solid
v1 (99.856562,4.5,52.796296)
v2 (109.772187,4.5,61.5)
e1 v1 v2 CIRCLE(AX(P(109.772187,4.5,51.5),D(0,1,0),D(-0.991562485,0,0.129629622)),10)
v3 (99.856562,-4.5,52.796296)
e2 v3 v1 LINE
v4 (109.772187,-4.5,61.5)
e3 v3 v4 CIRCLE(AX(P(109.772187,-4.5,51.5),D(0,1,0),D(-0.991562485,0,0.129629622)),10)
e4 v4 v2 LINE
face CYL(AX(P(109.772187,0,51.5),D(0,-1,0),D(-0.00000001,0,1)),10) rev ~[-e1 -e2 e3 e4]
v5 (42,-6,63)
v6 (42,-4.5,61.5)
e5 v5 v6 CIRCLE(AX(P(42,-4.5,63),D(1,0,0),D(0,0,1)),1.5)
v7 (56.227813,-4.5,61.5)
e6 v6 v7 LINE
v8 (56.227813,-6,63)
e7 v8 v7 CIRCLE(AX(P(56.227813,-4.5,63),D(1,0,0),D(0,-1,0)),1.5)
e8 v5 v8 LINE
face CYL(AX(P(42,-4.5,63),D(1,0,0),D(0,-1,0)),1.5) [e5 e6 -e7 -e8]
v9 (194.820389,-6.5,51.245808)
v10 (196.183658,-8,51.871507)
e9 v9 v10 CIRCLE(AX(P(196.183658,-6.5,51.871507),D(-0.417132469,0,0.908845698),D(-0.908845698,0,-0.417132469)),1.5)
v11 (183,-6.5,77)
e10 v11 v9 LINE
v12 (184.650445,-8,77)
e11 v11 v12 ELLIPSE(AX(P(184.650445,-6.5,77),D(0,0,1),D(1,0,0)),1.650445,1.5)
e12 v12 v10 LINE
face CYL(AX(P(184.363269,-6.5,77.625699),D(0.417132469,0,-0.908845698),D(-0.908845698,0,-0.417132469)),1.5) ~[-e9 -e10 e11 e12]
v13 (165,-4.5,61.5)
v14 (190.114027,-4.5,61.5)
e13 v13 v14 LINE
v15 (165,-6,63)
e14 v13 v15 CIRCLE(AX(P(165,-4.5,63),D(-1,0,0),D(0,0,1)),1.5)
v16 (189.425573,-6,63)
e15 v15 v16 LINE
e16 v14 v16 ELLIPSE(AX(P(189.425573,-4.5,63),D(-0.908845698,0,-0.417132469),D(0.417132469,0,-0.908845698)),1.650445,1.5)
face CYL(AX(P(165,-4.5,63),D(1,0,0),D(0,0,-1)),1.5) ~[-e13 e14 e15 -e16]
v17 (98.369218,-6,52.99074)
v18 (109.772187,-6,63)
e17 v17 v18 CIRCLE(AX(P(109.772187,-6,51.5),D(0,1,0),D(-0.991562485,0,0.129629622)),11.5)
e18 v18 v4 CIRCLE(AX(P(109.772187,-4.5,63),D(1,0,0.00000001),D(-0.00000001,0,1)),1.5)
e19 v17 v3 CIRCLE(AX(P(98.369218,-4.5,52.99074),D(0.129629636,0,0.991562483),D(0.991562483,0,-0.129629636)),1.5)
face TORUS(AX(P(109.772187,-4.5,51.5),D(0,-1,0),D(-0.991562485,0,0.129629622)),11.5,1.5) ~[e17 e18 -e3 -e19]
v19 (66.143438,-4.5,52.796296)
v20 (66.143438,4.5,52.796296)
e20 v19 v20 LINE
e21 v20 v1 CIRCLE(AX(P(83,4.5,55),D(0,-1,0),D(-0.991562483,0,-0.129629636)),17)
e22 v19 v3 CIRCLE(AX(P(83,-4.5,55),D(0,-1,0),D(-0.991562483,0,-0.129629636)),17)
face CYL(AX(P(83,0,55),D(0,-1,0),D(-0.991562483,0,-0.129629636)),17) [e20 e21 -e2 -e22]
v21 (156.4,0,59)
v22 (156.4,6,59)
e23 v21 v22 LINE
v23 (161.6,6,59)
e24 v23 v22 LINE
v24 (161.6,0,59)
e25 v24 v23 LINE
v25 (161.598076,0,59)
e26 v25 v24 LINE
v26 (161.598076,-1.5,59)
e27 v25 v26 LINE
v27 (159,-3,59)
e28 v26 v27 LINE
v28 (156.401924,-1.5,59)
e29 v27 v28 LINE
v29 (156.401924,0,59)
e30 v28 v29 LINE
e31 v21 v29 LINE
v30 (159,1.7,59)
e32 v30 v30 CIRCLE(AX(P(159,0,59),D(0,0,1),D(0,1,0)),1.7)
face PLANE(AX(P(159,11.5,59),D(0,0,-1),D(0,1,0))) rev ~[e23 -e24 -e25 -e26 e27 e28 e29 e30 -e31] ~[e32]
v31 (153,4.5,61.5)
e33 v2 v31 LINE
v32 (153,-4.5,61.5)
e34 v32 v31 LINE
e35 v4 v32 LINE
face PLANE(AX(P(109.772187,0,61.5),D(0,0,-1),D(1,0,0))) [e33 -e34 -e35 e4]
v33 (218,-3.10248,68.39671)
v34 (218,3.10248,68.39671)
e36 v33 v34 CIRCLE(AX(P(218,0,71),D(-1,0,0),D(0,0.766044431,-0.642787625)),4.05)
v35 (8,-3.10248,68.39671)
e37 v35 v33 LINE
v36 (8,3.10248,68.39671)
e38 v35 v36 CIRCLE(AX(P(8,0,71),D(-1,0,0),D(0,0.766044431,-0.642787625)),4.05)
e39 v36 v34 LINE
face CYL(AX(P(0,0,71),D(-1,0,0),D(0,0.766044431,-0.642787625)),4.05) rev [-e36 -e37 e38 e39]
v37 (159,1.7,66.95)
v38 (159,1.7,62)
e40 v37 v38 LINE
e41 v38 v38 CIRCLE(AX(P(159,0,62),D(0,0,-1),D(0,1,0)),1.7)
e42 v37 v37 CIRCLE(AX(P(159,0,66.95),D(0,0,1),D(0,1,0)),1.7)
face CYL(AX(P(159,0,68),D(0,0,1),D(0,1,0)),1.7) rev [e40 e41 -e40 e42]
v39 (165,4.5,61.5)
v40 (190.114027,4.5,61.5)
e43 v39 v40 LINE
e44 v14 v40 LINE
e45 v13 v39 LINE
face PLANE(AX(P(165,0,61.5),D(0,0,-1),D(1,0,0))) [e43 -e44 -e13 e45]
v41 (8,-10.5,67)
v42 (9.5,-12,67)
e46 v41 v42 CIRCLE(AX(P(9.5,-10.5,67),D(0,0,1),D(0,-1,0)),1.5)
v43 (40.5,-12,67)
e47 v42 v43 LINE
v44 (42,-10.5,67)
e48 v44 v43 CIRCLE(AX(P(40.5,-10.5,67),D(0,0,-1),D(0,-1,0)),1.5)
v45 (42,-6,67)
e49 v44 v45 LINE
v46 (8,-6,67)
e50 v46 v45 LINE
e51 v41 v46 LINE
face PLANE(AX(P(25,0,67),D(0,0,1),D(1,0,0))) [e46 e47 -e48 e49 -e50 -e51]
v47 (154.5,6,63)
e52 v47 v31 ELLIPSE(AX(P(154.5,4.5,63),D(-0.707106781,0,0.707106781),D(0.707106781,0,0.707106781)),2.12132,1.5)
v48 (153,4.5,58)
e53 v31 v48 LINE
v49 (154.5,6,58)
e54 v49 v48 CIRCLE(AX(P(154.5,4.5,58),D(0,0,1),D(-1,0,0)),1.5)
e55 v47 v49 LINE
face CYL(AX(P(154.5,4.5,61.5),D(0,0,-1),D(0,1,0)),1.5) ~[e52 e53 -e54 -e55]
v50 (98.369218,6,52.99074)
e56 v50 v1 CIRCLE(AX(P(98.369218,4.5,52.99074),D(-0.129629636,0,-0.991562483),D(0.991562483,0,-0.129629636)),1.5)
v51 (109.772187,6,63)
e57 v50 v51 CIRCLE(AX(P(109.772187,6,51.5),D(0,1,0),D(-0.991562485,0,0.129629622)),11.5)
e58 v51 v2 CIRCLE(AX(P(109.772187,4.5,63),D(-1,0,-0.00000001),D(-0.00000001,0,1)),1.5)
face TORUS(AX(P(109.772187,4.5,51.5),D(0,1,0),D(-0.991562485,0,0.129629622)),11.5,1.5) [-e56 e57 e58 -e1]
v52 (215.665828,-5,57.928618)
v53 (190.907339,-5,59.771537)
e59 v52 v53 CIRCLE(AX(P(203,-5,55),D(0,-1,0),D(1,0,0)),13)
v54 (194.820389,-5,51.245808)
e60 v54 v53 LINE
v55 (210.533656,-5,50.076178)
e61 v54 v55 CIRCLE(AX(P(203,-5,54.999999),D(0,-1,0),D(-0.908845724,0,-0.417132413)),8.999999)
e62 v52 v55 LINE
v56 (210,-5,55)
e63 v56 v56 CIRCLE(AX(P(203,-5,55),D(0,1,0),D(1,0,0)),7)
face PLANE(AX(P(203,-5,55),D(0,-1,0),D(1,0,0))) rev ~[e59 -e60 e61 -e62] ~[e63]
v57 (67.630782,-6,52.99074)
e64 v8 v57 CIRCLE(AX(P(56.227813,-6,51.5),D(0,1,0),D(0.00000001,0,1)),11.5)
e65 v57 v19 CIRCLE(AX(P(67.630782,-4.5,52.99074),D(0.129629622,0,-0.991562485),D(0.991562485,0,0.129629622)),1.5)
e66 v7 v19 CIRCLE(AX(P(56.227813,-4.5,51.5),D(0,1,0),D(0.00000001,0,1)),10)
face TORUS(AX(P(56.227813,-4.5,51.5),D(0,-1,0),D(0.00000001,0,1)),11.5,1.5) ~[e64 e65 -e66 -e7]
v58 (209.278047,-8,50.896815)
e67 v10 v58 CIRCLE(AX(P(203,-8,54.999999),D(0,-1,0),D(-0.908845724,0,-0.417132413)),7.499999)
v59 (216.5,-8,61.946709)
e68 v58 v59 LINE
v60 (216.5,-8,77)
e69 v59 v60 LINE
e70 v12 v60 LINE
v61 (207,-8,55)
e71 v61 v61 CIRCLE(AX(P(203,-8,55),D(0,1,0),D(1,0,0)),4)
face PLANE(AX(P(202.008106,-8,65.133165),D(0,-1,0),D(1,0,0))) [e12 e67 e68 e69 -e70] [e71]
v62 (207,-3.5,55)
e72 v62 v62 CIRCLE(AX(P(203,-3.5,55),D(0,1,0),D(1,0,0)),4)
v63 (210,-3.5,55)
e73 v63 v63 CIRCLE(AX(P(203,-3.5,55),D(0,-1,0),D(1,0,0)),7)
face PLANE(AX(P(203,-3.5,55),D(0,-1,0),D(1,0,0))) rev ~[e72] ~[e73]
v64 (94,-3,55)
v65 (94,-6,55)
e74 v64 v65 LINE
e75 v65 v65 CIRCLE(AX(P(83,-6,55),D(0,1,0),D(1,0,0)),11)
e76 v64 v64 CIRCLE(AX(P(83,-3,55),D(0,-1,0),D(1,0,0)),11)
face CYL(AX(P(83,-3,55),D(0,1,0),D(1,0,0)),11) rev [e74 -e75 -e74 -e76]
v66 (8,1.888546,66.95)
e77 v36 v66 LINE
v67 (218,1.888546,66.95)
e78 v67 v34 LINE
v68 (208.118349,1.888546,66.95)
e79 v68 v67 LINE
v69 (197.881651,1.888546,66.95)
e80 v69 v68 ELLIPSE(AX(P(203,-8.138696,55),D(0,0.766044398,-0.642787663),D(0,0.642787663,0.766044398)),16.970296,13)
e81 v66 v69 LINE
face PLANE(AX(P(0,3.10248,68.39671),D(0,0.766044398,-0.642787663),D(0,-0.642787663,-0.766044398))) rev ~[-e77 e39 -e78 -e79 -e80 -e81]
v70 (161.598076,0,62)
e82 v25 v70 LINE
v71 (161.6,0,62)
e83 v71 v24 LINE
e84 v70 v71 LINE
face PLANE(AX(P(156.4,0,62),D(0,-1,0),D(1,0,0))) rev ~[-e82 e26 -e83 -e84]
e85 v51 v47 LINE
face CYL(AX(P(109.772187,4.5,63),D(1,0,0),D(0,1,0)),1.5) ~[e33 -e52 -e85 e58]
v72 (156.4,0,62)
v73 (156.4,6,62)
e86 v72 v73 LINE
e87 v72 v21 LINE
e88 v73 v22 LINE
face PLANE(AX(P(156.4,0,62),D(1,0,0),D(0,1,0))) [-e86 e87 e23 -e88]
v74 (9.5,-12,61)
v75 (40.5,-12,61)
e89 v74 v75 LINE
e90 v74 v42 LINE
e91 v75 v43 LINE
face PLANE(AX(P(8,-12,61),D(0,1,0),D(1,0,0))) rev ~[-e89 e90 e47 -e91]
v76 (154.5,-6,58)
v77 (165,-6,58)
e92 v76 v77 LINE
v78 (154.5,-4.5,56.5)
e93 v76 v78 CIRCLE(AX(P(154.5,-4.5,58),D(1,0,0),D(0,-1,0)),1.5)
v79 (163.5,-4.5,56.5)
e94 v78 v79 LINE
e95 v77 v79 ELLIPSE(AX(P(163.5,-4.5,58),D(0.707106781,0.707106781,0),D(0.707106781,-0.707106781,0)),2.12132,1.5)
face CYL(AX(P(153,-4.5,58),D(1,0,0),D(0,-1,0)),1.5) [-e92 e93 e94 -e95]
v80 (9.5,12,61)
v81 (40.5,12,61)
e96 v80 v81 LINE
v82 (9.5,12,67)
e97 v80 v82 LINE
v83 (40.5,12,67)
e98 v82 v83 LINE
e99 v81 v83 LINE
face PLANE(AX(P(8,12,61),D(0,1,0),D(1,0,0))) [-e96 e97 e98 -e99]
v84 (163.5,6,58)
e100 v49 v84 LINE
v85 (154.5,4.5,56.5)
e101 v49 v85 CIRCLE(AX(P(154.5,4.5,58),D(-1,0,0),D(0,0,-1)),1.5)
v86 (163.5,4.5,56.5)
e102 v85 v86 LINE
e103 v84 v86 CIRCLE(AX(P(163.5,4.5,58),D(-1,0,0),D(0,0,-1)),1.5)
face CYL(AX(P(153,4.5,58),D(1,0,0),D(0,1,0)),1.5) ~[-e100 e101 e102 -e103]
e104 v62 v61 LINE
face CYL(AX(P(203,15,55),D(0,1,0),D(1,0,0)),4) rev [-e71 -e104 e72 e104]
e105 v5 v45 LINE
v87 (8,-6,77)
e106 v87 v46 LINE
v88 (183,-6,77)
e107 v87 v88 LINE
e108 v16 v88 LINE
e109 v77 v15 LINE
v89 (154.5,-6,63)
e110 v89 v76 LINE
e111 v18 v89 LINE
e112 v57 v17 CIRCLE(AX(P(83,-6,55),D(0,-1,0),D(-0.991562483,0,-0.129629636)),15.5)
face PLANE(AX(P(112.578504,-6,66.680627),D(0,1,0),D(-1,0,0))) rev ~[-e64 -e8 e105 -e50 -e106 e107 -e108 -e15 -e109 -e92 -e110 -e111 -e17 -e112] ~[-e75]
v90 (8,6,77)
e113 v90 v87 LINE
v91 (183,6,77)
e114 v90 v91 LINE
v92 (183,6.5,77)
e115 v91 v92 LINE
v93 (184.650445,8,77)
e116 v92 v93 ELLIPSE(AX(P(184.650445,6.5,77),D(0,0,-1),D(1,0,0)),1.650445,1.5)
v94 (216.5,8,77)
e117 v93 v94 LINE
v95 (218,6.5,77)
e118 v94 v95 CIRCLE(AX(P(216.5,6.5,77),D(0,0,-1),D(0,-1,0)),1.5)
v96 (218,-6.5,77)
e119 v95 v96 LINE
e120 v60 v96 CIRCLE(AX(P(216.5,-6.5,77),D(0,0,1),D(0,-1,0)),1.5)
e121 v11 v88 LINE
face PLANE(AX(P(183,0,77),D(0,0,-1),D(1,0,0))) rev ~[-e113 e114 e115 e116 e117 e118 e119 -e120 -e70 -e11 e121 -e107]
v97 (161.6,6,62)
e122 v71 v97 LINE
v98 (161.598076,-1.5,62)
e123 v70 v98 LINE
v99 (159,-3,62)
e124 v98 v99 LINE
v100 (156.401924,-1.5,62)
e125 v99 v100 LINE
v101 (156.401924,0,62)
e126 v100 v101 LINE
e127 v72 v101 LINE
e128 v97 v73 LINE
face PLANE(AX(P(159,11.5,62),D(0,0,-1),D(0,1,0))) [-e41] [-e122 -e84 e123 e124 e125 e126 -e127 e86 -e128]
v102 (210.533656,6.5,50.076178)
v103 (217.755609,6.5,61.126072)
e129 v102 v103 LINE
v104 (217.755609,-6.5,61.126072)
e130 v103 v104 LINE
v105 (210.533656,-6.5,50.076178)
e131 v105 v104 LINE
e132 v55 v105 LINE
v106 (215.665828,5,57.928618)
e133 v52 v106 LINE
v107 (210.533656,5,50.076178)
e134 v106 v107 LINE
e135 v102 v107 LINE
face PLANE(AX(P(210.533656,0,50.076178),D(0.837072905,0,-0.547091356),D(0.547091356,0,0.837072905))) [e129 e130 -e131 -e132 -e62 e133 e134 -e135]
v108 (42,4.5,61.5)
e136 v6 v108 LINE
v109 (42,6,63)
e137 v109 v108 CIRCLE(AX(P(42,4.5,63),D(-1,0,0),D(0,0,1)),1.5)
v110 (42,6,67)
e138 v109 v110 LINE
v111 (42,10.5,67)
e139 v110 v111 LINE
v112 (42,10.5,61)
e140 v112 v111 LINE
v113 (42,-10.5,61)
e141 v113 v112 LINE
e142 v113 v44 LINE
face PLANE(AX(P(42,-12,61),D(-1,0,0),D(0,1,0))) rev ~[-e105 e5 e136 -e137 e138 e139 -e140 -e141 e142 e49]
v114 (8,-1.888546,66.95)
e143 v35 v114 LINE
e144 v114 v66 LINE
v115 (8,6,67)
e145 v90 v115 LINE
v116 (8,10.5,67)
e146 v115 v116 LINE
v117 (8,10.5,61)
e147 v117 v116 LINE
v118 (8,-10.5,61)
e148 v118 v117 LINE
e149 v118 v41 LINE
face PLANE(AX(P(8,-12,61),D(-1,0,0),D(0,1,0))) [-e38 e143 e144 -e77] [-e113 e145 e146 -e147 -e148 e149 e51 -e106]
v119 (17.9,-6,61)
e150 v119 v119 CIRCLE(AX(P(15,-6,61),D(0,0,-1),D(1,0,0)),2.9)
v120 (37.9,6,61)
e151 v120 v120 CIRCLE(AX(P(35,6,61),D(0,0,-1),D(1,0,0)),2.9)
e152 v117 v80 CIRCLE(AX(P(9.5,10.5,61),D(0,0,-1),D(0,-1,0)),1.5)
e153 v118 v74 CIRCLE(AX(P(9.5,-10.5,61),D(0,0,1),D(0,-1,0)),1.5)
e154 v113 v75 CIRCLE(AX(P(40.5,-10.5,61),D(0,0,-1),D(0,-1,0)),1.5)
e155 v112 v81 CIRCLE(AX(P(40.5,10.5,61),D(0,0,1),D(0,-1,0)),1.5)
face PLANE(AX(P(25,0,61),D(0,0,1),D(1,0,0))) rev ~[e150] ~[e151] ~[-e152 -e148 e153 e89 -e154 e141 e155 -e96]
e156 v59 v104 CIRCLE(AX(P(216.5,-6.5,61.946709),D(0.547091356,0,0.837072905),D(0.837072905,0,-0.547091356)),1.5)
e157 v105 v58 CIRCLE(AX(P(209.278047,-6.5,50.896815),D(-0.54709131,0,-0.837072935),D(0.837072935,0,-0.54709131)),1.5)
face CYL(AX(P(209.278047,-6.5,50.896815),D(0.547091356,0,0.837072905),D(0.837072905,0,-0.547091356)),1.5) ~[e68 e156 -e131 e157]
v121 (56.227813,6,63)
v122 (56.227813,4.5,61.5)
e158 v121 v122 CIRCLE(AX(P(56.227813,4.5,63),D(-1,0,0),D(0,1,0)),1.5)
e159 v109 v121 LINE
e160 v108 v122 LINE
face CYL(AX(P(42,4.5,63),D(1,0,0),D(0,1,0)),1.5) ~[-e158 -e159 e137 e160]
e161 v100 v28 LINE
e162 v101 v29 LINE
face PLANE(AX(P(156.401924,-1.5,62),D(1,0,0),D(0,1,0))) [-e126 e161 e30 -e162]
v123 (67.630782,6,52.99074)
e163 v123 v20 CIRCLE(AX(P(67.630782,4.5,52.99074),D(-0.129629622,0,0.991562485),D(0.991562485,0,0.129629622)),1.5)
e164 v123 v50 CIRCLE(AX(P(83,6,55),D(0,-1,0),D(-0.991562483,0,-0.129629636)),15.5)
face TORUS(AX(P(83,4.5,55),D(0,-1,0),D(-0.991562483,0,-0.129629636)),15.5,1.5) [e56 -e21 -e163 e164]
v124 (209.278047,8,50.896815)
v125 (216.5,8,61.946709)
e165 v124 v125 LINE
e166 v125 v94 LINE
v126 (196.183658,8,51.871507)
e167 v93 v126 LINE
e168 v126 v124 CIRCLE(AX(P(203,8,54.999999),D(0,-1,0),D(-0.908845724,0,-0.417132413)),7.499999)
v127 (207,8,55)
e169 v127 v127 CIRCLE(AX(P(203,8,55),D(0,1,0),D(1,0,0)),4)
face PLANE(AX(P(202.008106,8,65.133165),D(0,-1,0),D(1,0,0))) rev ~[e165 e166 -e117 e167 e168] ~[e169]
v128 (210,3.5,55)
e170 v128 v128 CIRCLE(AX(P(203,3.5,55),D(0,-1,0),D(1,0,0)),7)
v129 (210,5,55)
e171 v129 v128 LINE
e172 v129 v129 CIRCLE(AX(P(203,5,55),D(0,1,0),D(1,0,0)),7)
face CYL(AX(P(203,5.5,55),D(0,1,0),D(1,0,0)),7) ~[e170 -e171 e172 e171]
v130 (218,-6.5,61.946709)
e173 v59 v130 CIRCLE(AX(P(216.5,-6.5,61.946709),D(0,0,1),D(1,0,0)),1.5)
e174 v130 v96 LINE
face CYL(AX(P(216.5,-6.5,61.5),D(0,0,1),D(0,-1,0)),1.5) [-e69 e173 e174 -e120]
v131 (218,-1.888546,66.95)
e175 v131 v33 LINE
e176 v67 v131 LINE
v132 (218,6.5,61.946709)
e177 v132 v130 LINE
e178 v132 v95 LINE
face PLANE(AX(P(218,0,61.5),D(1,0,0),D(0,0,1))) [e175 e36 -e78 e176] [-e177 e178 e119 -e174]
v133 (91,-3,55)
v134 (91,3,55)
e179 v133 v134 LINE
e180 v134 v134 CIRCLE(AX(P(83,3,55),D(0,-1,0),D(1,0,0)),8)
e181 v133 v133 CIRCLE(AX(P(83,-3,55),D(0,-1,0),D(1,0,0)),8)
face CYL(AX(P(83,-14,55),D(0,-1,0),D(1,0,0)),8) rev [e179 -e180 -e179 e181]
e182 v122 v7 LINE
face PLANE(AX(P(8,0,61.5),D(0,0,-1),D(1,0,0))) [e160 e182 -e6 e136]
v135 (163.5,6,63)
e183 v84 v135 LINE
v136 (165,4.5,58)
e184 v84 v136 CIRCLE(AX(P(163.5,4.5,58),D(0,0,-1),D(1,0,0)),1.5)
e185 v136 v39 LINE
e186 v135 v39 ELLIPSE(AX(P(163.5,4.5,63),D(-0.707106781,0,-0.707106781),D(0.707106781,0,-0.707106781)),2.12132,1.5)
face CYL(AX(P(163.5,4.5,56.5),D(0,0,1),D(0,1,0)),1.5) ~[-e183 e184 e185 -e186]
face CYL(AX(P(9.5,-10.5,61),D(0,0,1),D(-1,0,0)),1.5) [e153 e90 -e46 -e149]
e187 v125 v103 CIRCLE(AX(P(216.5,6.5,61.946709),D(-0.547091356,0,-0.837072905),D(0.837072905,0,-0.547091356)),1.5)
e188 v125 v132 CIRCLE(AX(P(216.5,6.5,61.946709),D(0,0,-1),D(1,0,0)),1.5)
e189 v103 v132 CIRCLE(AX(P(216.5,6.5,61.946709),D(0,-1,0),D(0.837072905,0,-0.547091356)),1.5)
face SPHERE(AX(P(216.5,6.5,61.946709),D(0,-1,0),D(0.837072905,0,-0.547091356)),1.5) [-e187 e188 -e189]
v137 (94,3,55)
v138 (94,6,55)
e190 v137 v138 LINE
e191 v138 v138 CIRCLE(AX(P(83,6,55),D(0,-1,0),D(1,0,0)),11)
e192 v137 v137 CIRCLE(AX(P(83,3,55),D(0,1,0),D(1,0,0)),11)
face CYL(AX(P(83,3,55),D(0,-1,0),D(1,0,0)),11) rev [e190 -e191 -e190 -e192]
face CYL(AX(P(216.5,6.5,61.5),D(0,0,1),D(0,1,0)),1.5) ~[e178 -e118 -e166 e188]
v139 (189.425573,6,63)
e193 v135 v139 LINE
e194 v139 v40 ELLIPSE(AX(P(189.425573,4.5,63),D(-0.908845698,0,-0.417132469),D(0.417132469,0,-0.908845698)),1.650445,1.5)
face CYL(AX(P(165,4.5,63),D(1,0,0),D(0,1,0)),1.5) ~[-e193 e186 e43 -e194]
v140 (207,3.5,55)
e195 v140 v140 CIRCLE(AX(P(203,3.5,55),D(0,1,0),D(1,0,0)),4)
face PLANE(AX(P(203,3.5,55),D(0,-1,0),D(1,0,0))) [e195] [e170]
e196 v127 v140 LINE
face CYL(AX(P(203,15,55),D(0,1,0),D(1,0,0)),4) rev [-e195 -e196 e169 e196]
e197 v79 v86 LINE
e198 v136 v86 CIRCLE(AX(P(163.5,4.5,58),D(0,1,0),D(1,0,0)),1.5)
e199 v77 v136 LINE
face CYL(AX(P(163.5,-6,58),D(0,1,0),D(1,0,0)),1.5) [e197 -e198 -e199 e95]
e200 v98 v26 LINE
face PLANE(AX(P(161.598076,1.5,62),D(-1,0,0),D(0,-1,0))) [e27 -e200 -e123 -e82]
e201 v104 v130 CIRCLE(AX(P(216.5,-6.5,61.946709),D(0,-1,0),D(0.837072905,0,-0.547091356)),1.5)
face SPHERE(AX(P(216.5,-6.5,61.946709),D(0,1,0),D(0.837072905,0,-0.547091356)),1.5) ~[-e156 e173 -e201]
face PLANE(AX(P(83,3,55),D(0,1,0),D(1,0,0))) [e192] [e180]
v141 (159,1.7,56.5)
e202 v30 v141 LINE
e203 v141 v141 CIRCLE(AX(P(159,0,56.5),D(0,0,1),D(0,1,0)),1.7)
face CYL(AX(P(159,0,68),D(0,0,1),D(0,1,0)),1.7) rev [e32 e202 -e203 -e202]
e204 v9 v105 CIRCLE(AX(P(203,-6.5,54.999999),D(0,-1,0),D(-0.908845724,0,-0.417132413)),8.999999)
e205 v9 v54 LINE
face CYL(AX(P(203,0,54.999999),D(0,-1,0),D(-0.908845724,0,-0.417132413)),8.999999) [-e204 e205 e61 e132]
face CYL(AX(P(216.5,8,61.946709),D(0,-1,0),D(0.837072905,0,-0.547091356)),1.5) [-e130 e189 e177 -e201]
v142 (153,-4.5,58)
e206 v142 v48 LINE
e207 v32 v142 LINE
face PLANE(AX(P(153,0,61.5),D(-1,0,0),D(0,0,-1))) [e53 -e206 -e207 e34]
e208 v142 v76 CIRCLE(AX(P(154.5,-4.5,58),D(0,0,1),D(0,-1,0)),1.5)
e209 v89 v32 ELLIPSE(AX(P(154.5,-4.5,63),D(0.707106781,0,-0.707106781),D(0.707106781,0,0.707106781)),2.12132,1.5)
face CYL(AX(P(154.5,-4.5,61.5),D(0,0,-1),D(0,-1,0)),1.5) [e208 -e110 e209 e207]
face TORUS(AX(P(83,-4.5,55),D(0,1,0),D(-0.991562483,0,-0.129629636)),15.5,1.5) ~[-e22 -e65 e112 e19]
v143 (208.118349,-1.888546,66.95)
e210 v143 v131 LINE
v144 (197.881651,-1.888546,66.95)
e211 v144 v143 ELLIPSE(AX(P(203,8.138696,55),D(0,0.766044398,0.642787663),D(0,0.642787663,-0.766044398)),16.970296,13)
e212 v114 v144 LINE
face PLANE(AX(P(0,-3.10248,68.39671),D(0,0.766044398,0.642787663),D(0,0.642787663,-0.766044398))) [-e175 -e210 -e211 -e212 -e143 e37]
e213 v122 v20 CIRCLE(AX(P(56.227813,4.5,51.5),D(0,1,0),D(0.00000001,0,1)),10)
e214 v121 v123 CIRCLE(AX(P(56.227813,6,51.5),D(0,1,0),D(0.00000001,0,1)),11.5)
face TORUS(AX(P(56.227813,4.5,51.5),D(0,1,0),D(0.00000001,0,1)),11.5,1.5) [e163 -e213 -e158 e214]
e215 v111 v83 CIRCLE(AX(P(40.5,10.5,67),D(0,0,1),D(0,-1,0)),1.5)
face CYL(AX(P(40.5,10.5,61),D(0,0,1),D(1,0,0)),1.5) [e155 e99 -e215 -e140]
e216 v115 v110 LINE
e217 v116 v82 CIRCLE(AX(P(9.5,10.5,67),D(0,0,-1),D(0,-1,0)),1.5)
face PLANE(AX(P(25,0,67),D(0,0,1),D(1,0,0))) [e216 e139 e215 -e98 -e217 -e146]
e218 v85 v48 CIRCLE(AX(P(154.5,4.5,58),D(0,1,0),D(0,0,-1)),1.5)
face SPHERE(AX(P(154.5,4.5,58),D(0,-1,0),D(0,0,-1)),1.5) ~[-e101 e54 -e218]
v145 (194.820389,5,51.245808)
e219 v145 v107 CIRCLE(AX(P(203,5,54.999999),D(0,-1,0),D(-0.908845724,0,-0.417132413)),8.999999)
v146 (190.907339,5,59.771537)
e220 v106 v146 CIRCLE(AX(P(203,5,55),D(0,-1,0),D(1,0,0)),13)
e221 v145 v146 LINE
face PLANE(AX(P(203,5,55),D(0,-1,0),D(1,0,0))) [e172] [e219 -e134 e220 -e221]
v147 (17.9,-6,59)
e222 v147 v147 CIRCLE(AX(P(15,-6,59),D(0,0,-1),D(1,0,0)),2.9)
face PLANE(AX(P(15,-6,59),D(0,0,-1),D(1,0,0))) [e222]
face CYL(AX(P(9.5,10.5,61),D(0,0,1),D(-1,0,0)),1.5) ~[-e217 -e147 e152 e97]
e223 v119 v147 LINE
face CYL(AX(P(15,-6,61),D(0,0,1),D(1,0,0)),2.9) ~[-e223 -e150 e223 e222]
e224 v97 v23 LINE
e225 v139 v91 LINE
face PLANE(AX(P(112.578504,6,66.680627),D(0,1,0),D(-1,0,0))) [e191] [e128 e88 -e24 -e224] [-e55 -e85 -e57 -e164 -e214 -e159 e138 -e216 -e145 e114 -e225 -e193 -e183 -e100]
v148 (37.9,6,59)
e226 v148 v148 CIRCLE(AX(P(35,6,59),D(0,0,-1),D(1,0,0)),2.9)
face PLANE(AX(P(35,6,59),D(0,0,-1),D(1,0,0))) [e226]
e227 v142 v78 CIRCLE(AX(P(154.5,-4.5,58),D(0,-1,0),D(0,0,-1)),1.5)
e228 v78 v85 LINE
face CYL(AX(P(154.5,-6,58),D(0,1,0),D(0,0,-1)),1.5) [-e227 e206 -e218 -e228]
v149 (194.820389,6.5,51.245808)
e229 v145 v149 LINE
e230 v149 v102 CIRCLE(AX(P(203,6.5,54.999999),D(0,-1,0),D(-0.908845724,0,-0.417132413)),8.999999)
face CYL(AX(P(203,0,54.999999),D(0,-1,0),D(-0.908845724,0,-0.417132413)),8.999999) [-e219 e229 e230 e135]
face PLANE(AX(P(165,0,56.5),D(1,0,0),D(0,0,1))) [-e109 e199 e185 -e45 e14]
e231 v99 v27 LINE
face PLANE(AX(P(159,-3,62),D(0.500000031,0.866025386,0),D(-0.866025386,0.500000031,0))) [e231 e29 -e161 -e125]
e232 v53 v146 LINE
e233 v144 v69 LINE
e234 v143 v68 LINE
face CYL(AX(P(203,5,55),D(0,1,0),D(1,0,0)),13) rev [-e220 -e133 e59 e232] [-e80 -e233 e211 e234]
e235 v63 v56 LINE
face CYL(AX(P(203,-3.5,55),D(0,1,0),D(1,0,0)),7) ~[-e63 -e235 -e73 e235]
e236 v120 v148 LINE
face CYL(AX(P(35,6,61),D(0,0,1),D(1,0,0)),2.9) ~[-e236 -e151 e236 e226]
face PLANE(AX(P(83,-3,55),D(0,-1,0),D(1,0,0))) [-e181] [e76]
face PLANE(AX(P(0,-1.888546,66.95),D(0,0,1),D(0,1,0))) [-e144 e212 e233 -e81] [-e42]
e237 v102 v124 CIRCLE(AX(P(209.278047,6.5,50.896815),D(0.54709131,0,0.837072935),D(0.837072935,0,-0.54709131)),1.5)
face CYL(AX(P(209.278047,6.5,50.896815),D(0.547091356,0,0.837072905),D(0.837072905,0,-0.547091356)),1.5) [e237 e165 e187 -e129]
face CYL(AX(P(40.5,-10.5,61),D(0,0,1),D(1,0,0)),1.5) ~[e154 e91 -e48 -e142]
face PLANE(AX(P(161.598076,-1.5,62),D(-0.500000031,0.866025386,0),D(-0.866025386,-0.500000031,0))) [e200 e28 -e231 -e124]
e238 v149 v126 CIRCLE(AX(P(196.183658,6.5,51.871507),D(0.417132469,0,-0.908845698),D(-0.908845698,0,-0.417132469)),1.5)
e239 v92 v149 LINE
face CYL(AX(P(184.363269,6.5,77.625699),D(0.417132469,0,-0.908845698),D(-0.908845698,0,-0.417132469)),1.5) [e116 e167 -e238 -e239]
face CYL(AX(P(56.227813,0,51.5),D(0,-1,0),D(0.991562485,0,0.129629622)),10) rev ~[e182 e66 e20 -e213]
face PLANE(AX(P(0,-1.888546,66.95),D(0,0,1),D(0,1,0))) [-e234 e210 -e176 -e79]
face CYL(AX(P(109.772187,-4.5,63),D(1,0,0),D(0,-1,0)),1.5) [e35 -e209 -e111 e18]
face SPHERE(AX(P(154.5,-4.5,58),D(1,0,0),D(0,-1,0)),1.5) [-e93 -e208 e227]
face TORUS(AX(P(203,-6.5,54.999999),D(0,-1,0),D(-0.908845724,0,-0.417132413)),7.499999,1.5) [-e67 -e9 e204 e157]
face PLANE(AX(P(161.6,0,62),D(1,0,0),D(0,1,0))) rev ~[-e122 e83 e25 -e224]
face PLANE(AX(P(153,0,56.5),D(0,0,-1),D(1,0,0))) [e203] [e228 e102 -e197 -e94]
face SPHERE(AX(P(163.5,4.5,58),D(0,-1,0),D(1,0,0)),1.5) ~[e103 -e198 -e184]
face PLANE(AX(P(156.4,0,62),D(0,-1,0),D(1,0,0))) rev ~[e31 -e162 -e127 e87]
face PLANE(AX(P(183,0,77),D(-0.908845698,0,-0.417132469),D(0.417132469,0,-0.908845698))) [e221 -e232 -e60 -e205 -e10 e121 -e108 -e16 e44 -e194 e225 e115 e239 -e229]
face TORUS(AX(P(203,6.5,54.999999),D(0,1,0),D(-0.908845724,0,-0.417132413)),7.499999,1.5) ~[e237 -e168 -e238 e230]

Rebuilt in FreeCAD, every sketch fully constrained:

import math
import FreeCAD as App
import Part
import Sketcher
Q = App.Units.Quantity


def edges_at(feature, points):
    """Names of the edges that pass closest to the given points."""
    edges = feature.Shape.Edges
    near = lambda p: min(range(len(edges)), key=lambda i: edges[i].distToShape(Part.Vertex(*p))[0])
    return sorted({f"Edge{near(p) + 1}" for p in points})


def add_polygon(sketch, points):
    """Adds a closed chain of lines whose ends are joined by coincident constraints."""
    first, n = sketch.GeometryCount, len(points)
    for a, b in zip(points, points[1:] + points[:1]):
        sketch.addGeometry(Part.LineSegment(App.Vector(*a, 0), App.Vector(*b, 0)), False)
    for i in range(n):
        sketch.addConstraint(Sketcher.Constraint("Coincident", first + i, 2, first + (i + 1) % n, 1))

doc = App.newDocument("Part")
params = doc.addObject("Spreadsheet::Sheet", "Params")
for row, (alias, value) in enumerate([
    ("sketch1_diameter", "22 mm"),
    ("pad1_length", "10 mm"),
    ("sketch2_diameter", "16 mm"),
    ("pad2_length", "28 mm"),
    ("sketch3_diameter", "22 mm"),
    ("pad3_length", "10 mm"),
    ("sketch4_diameter", "8 mm"),
    ("pad4_length", "31 mm"),
    ("sketch5_diameter", "14 mm"),
    ("pad5_length", "2 mm"),
    ("sketch6_diameter", "14 mm"),
    ("pad6_length", "2 mm"),
    ("sketch7_diameter", "26 mm"),
    ("pad7_length", "10 mm"),
    ("sketch8_diameter", "3.4 mm"),
    ("pad8_length", "21 mm"),
    ("sketch9_width", "23 mm"),
    ("sketch9_height", "5.2 mm"),
    ("pad9_length", "3 mm"),
    ("sketch10_width", "3 mm"),
    ("sketch10_length", "3 mm"),
    ("pad10_length", "3 mm"),
    ("sketch11_radius", "4.05 mm"),
    ("pad11_length", "275 mm"),
    ("sketch12_diameter", "22 mm"),
    ("pad12_length", "10 mm"),
    ("sketch13_width", "34 mm"),
    ("sketch13_height", "24 mm"),
    ("pad13_length", "6 mm"),
    ("sketch14_radius", "8.999999 mm"),
    ("sketch14_width", "35 mm"),
    ("sketch14_height", "15.5 mm"),
    ("pad14_length", "16 mm"),
    ("sketch15_diameter", "5.8 mm"),
    ("pad15_length", "2 mm"),
    ("sketch16_diameter", "5.8 mm"),
    ("pad16_length", "2 mm"),
    ("sketch17_radius", "10 mm"),
    ("sketch17_radius2", "17 mm"),
    ("sketch17_width", "210 mm"),
    ("sketch17_width2", "12 mm"),
    ("sketch17_width3", "53 mm"),
    ("pad17_length", "12 mm"),
    ("fillet_radius", "1.5 mm"),
], start=1):
    params.set(f"A{row}", alias)
    params.set(f"B{row}", "=" + value)
    params.setAlias(f"B{row}", alias)

body = doc.addObject("PartDesign::Body", "Body")

sketch1 = body.newObject("Sketcher::SketchObject", "Sketch")
sketch1.AttachmentSupport = (doc.getObject("XZ_Plane"), [""])
sketch1.MapMode = "FlatFace"
sketch1.AttachmentOffset = App.Placement(App.Vector(0, 0, -3), App.Rotation())
sketch1.addGeometry(Part.Circle(App.Vector(83, 55, 0), App.Vector(0, 0, 1), 11), False)
sketch1.addConstraint([
    Sketcher.Constraint("Diameter", 0, Q("22 mm")),
    Sketcher.Constraint("DistanceX", -1, 1, 0, 3, Q("83 mm")),
    Sketcher.Constraint("DistanceY", -1, 1, 0, 3, Q("55 mm")),
])
sketch1.setExpression("Constraints[0]", "Params.sketch1_diameter")
pad1 = body.newObject("PartDesign::Pad", "Pad")
pad1.Profile = sketch1
pad1.setExpression("Length", "Params.pad1_length")
pad1.Reversed = True
body2 = doc.addObject("PartDesign::Body", "Body001")

sketch2 = body2.newObject("Sketcher::SketchObject", "Sketch001")
sketch2.AttachmentSupport = (doc.getObject("XZ_Plane001"), [""])
sketch2.MapMode = "FlatFace"
sketch2.AttachmentOffset = App.Placement(App.Vector(0, 0, 14), App.Rotation())
sketch2.addGeometry(Part.Circle(App.Vector(83, 55, 0), App.Vector(0, 0, 1), 8), False)
sketch2.addConstraint([
    Sketcher.Constraint("Diameter", 0, Q("16 mm")),
    Sketcher.Constraint("DistanceX", -1, 1, 0, 3, Q("83 mm")),
    Sketcher.Constraint("DistanceY", -1, 1, 0, 3, Q("55 mm")),
])
sketch2.setExpression("Constraints[0]", "Params.sketch2_diameter")
pad2 = body2.newObject("PartDesign::Pad", "Pad001")
pad2.Profile = sketch2
pad2.setExpression("Length", "Params.pad2_length")
pad2.Reversed = True
body3 = doc.addObject("PartDesign::Body", "Body002")

sketch3 = body3.newObject("Sketcher::SketchObject", "Sketch002")
sketch3.AttachmentSupport = (doc.getObject("XZ_Plane002"), [""])
sketch3.MapMode = "FlatFace"
sketch3.AttachmentOffset = App.Placement(App.Vector(0, 0, 3), App.Rotation())
sketch3.addGeometry(Part.Circle(App.Vector(83, 55, 0), App.Vector(0, 0, 1), 11), False)
sketch3.addConstraint([
    Sketcher.Constraint("Diameter", 0, Q("22 mm")),
    Sketcher.Constraint("DistanceX", -1, 1, 0, 3, Q("83 mm")),
    Sketcher.Constraint("DistanceY", -1, 1, 0, 3, Q("55 mm")),
])
sketch3.setExpression("Constraints[0]", "Params.sketch3_diameter")
pad3 = body3.newObject("PartDesign::Pad", "Pad002")
pad3.Profile = sketch3
pad3.setExpression("Length", "Params.pad3_length")
body4 = doc.addObject("PartDesign::Body", "Body003")

sketch4 = body4.newObject("Sketcher::SketchObject", "Sketch003")
sketch4.AttachmentSupport = (doc.getObject("XZ_Plane003"), [""])
sketch4.MapMode = "FlatFace"
sketch4.AttachmentOffset = App.Placement(App.Vector(0, 0, -15), App.Rotation())
sketch4.addGeometry(Part.Circle(App.Vector(203, 55, 0), App.Vector(0, 0, 1), 4), False)
sketch4.addConstraint([
    Sketcher.Constraint("Diameter", 0, Q("8 mm")),
    Sketcher.Constraint("DistanceX", -1, 1, 0, 3, Q("203 mm")),
    Sketcher.Constraint("DistanceY", -1, 1, 0, 3, Q("55 mm")),
])
sketch4.setExpression("Constraints[0]", "Params.sketch4_diameter")
pad4 = body4.newObject("PartDesign::Pad", "Pad003")
pad4.Profile = sketch4
pad4.setExpression("Length", "Params.pad4_length")
body5 = doc.addObject("PartDesign::Body", "Body004")

sketch5 = body5.newObject("Sketcher::SketchObject", "Sketch004")
sketch5.AttachmentSupport = (doc.getObject("XZ_Plane004"), [""])
sketch5.MapMode = "FlatFace"
sketch5.AttachmentOffset = App.Placement(App.Vector(0, 0, 3.5), App.Rotation())
sketch5.addGeometry(Part.Circle(App.Vector(203, 55, 0), App.Vector(0, 0, 1), 7), False)
sketch5.addConstraint([
    Sketcher.Constraint("Diameter", 0, Q("14 mm")),
    Sketcher.Constraint("DistanceX", -1, 1, 0, 3, Q("203 mm")),
    Sketcher.Constraint("DistanceY", -1, 1, 0, 3, Q("55 mm")),
])
sketch5.setExpression("Constraints[0]", "Params.sketch5_diameter")
pad5 = body5.newObject("PartDesign::Pad", "Pad004")
pad5.Profile = sketch5
pad5.setExpression("Length", "Params.pad5_length")
body6 = doc.addObject("PartDesign::Body", "Body005")
body6.AllowCompound = True

sketch6 = body6.newObject("Sketcher::SketchObject", "Sketch005")
sketch6.AttachmentSupport = (doc.getObject("XZ_Plane005"), [""])
sketch6.MapMode = "FlatFace"
sketch6.AttachmentOffset = App.Placement(App.Vector(0, 0, -5.5), App.Rotation())
sketch6.addGeometry(Part.Circle(App.Vector(203, 55, 0), App.Vector(0, 0, 1), 7), False)
sketch6.addConstraint([
    Sketcher.Constraint("Diameter", 0, Q("14 mm")),
    Sketcher.Constraint("DistanceX", -1, 1, 0, 3, Q("203 mm")),
    Sketcher.Constraint("DistanceY", -1, 1, 0, 3, Q("55 mm")),
])
sketch6.setExpression("Constraints[0]", "Params.sketch6_diameter")
pad6 = body6.newObject("PartDesign::Pad", "Pad005")
pad6.Profile = sketch6
pad6.setExpression("Length", "Params.pad6_length")
doc.recompute()

boolean = body6.newObject("PartDesign::Boolean", "Boolean")
boolean.Type = "Fuse"
boolean.addObjects([body5])
body7 = doc.addObject("PartDesign::Body", "Body006")

sketch7 = body7.newObject("Sketcher::SketchObject", "Sketch006")
sketch7.AttachmentSupport = (doc.getObject("XZ_Plane006"), [""])
sketch7.MapMode = "FlatFace"
sketch7.AttachmentOffset = App.Placement(App.Vector(0, 0, -5), App.Rotation())
sketch7.addGeometry(Part.Circle(App.Vector(203, 55, 0), App.Vector(0, 0, 1), 13), False)
sketch7.addConstraint([
    Sketcher.Constraint("Diameter", 0, Q("26 mm")),
    Sketcher.Constraint("DistanceX", -1, 1, 0, 3, Q("203 mm")),
    Sketcher.Constraint("DistanceY", -1, 1, 0, 3, Q("55 mm")),
])
sketch7.setExpression("Constraints[0]", "Params.sketch7_diameter")
pad7 = body7.newObject("PartDesign::Pad", "Pad006")
pad7.Profile = sketch7
pad7.setExpression("Length", "Params.pad7_length")
doc.recompute()

boolean2 = body7.newObject("PartDesign::Boolean", "Boolean001")
boolean2.Type = "Cut"
boolean2.addObjects([body6])
body8 = doc.addObject("PartDesign::Body", "Body007")

sketch8 = body8.newObject("Sketcher::SketchObject", "Sketch007")
sketch8.AttachmentSupport = (doc.getObject("XY_Plane007"), [""])
sketch8.MapMode = "FlatFace"
sketch8.AttachmentOffset = App.Placement(App.Vector(0, 0, -6), App.Rotation())
sketch8.addGeometry(Part.Circle(App.Vector(0, 0, 0), App.Vector(0, 0, 1), 1.7), False)
sketch8.addConstraint([
    Sketcher.Constraint("Coincident", 0, 3, -1, 1),
    Sketcher.Constraint("Diameter", 0, Q("3.4 mm")),
])
sketch8.setExpression("Constraints[1]", "Params.sketch8_diameter")
pad8 = body8.newObject("PartDesign::Pad", "Pad007")
pad8.Profile = sketch8
pad8.setExpression("Length", "Params.pad8_length")
body9 = doc.addObject("PartDesign::Body", "Body008")

sketch9 = body9.newObject("Sketcher::SketchObject", "Sketch008")
sketch9.AttachmentSupport = (doc.getObject("XY_Plane008"), [""])
sketch9.MapMode = "FlatFace"
add_polygon(sketch9, [(0, 2.6), (0, -2.6), (23, -2.6), (23, 2.6)])
sketch9.addConstraint([
    Sketcher.Constraint("Vertical", 0),
    Sketcher.Constraint("Horizontal", 1),
    Sketcher.Constraint("Vertical", 2),
    Sketcher.Constraint("Horizontal", 3),
    Sketcher.Constraint("Symmetric", 0, 2, 3, 2, -1, 1),
    Sketcher.Constraint("DistanceX", 1, 1, 1, 2, Q("23 mm")),
    Sketcher.Constraint("DistanceY", 0, 2, 0, 1, Q("5.2 mm")),
])
sketch9.setExpression("Constraints[9]", "Params.sketch9_width")
sketch9.setExpression("Constraints[10]", "Params.sketch9_height")
pad9 = body9.newObject("PartDesign::Pad", "Pad008")
pad9.Profile = sketch9
pad9.setExpression("Length", "Params.pad9_length")
body10 = doc.addObject("PartDesign::Body", "Body009")

sketch10 = body10.newObject("Sketcher::SketchObject", "Sketch009")
sketch10.AttachmentSupport = (doc.getObject("XY_Plane009"), [""])
sketch10.MapMode = "FlatFace"
add_polygon(sketch10, [(3, 0), (1.5, 2.598076), (-1.5, 2.598076), (-3, 0), (-1.5, -2.598076), (1.5, -2.598076)])
sketch10.addConstraint([
    Sketcher.Constraint("Horizontal", 1),
    Sketcher.Constraint("Horizontal", 4),
    Sketcher.Constraint("Symmetric", 0, 2, 3, 2, -1, 1),
    Sketcher.Constraint("Symmetric", 2, 2, 5, 2, -1, 1),
    Sketcher.Constraint("PointOnObject", 2, 2, -1),
    Sketcher.Constraint("Parallel", 2, 5),
    Sketcher.Constraint("Vertical", 1, 2, 3, 2),
    Sketcher.Constraint("DistanceX", 1, 2, 1, 1, Q("3 mm")),
    Sketcher.Constraint("Angle", 0, Q("120.000002 deg")),
    Sketcher.Constraint("Distance", 0, Q("3 mm")),
])
sketch10.setExpression("Constraints[13]", "Params.sketch10_width")
sketch10.setExpression("Constraints[15]", "Params.sketch10_length")
pad10 = body10.newObject("PartDesign::Pad", "Pad009")
pad10.Profile = sketch10
pad10.setExpression("Length", "Params.pad10_length")
doc.recompute()

boolean3 = body10.newObject("PartDesign::Boolean", "Boolean002")
boolean3.Type = "Fuse"
boolean3.addObjects([body8])
doc.recompute()

boolean4 = body10.newObject("PartDesign::Boolean", "Boolean003")
boolean4.Type = "Fuse"
boolean4.addObjects([body9])
body11 = doc.addObject("PartDesign::Body", "Body010")
doc.recompute()

body10.Placement = App.Placement(App.Vector(0, 0, 0), App.Rotation(App.Vector(1, 0, 0), 180))
boolean5 = body11.newObject("PartDesign::Boolean", "Boolean004")
boolean5.Type = "Fuse"
boolean5.addObjects([body10])
body12 = doc.addObject("PartDesign::Body", "Body011")
doc.recompute()

body11.Placement = App.Placement(App.Vector(159, 0, 62), App.Rotation(App.Vector(0, 0, 1), 90))
boolean6 = body12.newObject("PartDesign::Boolean", "Boolean005")
boolean6.Type = "Fuse"
boolean6.addObjects([body11])
body13 = doc.addObject("PartDesign::Body", "Body012")

sketch11 = body13.newObject("Sketcher::SketchObject", "Sketch010")
sketch11.AttachmentSupport = (doc.getObject("YZ_Plane012"), [""])
sketch11.MapMode = "FlatFace"
sketch11.addGeometry([
    Part.ArcOfCircle(Part.Circle(App.Vector(0, 0, 0), App.Vector(0, 0, 1), 4.05), math.radians(-40.000001), math.radians(220.000001)),
    Part.LineSegment(App.Vector(-3.10248, -2.60329, 0), App.Vector(-1.888546, -4.05, 0)),
    Part.LineSegment(App.Vector(-1.888546, -4.05, 0), App.Vector(1.888546, -4.05, 0)),
    Part.LineSegment(App.Vector(1.888546, -4.05, 0), App.Vector(3.10248, -2.60329, 0)),
], False)
sketch11.addConstraint([
    Sketcher.Constraint("Tangent", 0, 2, 1, 1),
    Sketcher.Constraint("Coincident", 1, 2, 2, 1),
    Sketcher.Constraint("Coincident", 2, 2, 3, 1),
    Sketcher.Constraint("Tangent", 3, 2, 0, 1),
    Sketcher.Constraint("Horizontal", 2),
    Sketcher.Constraint("Coincident", 0, 3, -1, 1),
    Sketcher.Constraint("Horizontal", 0, 2, 3, 2),
    Sketcher.Constraint("Angle", 1, Q("-49.999996 deg")),
    Sketcher.Constraint("Radius", 0, Q("4.05 mm")),
    Sketcher.Constraint("DistanceY", 1, 2, -1, 1, Q("4.05 mm")),
])
sketch11.setExpression("Constraints[8]", "Params.sketch11_radius")
pad11 = body13.newObject("PartDesign::Pad", "Pad010")
pad11.Profile = sketch11
pad11.setExpression("Length", "Params.pad11_length")
body14 = doc.addObject("PartDesign::Body", "Body013")
doc.recompute()

body13.Placement = App.Placement(App.Vector(0, 0, 71), App.Rotation(App.Vector(0, 0, 1), 0))
boolean7 = body14.newObject("PartDesign::Boolean", "Boolean006")
boolean7.Type = "Fuse"
boolean7.addObjects([body13])
body15 = doc.addObject("PartDesign::Body", "Body014")
body15.AllowCompound = True

sketch12 = body15.newObject("Sketcher::SketchObject", "Sketch011")
sketch12.AttachmentSupport = (doc.getObject("XZ_Plane014"), [""])
sketch12.MapMode = "FlatFace"
sketch12.AttachmentOffset = App.Placement(App.Vector(0, 0, 3), App.Rotation())
sketch12.addGeometry(Part.Circle(App.Vector(83, 55, 0), App.Vector(0, 0, 1), 11), False)
sketch12.addConstraint([
    Sketcher.Constraint("Diameter", 0, Q("22 mm")),
    Sketcher.Constraint("DistanceX", -1, 1, 0, 3, Q("83 mm")),
    Sketcher.Constraint("DistanceY", -1, 1, 0, 3, Q("55 mm")),
])
sketch12.setExpression("Constraints[0]", "Params.sketch12_diameter")
pad12 = body15.newObject("PartDesign::Pad", "Pad011")
pad12.Profile = sketch12
pad12.setExpression("Length", "Params.pad12_length")
doc.recompute()

boolean8 = body15.newObject("PartDesign::Boolean", "Boolean007")
boolean8.Type = "Fuse"
boolean8.addObjects([body])
doc.recompute()

boolean9 = body15.newObject("PartDesign::Boolean", "Boolean008")
boolean9.Type = "Fuse"
boolean9.addObjects([body2])
doc.recompute()

boolean10 = body15.newObject("PartDesign::Boolean", "Boolean009")
boolean10.Type = "Fuse"
boolean10.addObjects([body3])
doc.recompute()

boolean11 = body15.newObject("PartDesign::Boolean", "Boolean010")
boolean11.Type = "Fuse"
boolean11.addObjects([body4])
doc.recompute()

boolean12 = body15.newObject("PartDesign::Boolean", "Boolean011")
boolean12.Type = "Fuse"
boolean12.addObjects([body7])
doc.recompute()

boolean13 = body15.newObject("PartDesign::Boolean", "Boolean012")
boolean13.Type = "Fuse"
boolean13.addObjects([body12])
doc.recompute()

boolean14 = body15.newObject("PartDesign::Boolean", "Boolean013")
boolean14.Type = "Fuse"
boolean14.addObjects([body14])
body16 = doc.addObject("PartDesign::Body", "Body015")

sketch13 = body16.newObject("Sketcher::SketchObject", "Sketch012")
sketch13.AttachmentSupport = (doc.getObject("XY_Plane015"), [""])
sketch13.MapMode = "FlatFace"
sketch13.AttachmentOffset = App.Placement(App.Vector(0, 0, 61), App.Rotation())
add_polygon(sketch13, [(8, 12), (8, -12), (42, -12), (42, 12)])
sketch13.addConstraint([
    Sketcher.Constraint("Vertical", 0),
    Sketcher.Constraint("Horizontal", 1),
    Sketcher.Constraint("Vertical", 2),
    Sketcher.Constraint("Horizontal", 3),
    Sketcher.Constraint("DistanceX", 1, 1, 1, 2, Q("34 mm")),
    Sketcher.Constraint("DistanceY", 0, 2, 0, 1, Q("24 mm")),
    Sketcher.Constraint("DistanceX", -1, 1, 0, 2, Q("8 mm")),
    Sketcher.Constraint("DistanceY", 0, 2, -1, 1, Q("12 mm")),
])
sketch13.setExpression("Constraints[8]", "Params.sketch13_width")
sketch13.setExpression("Constraints[9]", "Params.sketch13_height")
pad13 = body16.newObject("PartDesign::Pad", "Pad012")
pad13.Profile = sketch13
pad13.setExpression("Length", "Params.pad13_length")
body17 = doc.addObject("PartDesign::Body", "Body016")

sketch14 = body17.newObject("Sketcher::SketchObject", "Sketch013")
sketch14.AttachmentSupport = (doc.getObject("XZ_Plane016"), [""])
sketch14.MapMode = "FlatFace"
sketch14.addGeometry([
    Part.ArcOfCircle(Part.Circle(App.Vector(203, 54.999999, 0), App.Vector(0, 0, 1), 8.999999), math.radians(-155.346323), math.radians(-33.167693)),
    Part.LineSegment(App.Vector(210.533656, 50.076178, 0), App.Vector(218, 61.5, 0)),
    Part.LineSegment(App.Vector(218, 61.5, 0), App.Vector(218, 77, 0)),
    Part.LineSegment(App.Vector(218, 77, 0), App.Vector(183, 77, 0)),
    Part.LineSegment(App.Vector(183, 77, 0), App.Vector(194.820389, 51.245808, 0)),
], False)
sketch14.addConstraint([
    Sketcher.Constraint("Tangent", 0, 2, 1, 1),
    Sketcher.Constraint("Coincident", 1, 2, 2, 1),
    Sketcher.Constraint("Coincident", 2, 2, 3, 1),
    Sketcher.Constraint("Coincident", 3, 2, 4, 1),
    Sketcher.Constraint("Tangent", 4, 2, 0, 1),
    Sketcher.Constraint("Vertical", 2),
    Sketcher.Constraint("Horizontal", 3),
    Sketcher.Constraint("Radius", 0, Q("8.999999 mm")),
    Sketcher.Constraint("DistanceX", 3, 2, 3, 1, Q("35 mm")),
    Sketcher.Constraint("DistanceY", 2, 1, 2, 2, Q("15.5 mm")),
    Sketcher.Constraint("DistanceX", -1, 1, 0, 3, Q("203 mm")),
    Sketcher.Constraint("DistanceY", -1, 1, 0, 3, Q("54.999999 mm")),
    Sketcher.Constraint("DistanceX", -1, 1, 1, 2, Q("218 mm")),
    Sketcher.Constraint("DistanceY", -1, 1, 2, 2, Q("77 mm")),
])
sketch14.setExpression("Constraints[7]", "Params.sketch14_radius")
sketch14.setExpression("Constraints[8]", "Params.sketch14_width")
sketch14.setExpression("Constraints[9]", "Params.sketch14_height")
pad14 = body17.newObject("PartDesign::Pad", "Pad013")
pad14.Profile = sketch14
pad14.setExpression("Length", "Params.pad14_length")
pad14.Midplane = True
body18 = doc.addObject("PartDesign::Body", "Body017")

sketch15 = body18.newObject("Sketcher::SketchObject", "Sketch014")
sketch15.AttachmentSupport = (doc.getObject("XY_Plane017"), [""])
sketch15.MapMode = "FlatFace"
sketch15.AttachmentOffset = App.Placement(App.Vector(0, 0, 61), App.Rotation())
sketch15.addGeometry(Part.Circle(App.Vector(35, 6, 0), App.Vector(0, 0, 1), 2.9), False)
sketch15.addConstraint([
    Sketcher.Constraint("Diameter", 0, Q("5.8 mm")),
    Sketcher.Constraint("DistanceX", -1, 1, 0, 3, Q("35 mm")),
    Sketcher.Constraint("DistanceY", -1, 1, 0, 3, Q("6 mm")),
])
sketch15.setExpression("Constraints[0]", "Params.sketch15_diameter")
pad15 = body18.newObject("PartDesign::Pad", "Pad014")
pad15.Profile = sketch15
pad15.setExpression("Length", "Params.pad15_length")
pad15.Reversed = True
body19 = doc.addObject("PartDesign::Body", "Body018")

sketch16 = body19.newObject("Sketcher::SketchObject", "Sketch015")
sketch16.AttachmentSupport = (doc.getObject("XY_Plane018"), [""])
sketch16.MapMode = "FlatFace"
sketch16.AttachmentOffset = App.Placement(App.Vector(0, 0, 61), App.Rotation())
sketch16.addGeometry(Part.Circle(App.Vector(15, -6, 0), App.Vector(0, 0, 1), 2.9), False)
sketch16.addConstraint([
    Sketcher.Constraint("Diameter", 0, Q("5.8 mm")),
    Sketcher.Constraint("DistanceX", -1, 1, 0, 3, Q("15 mm")),
    Sketcher.Constraint("DistanceY", 0, 3, -1, 1, Q("6 mm")),
])
sketch16.setExpression("Constraints[0]", "Params.sketch16_diameter")
pad16 = body19.newObject("PartDesign::Pad", "Pad015")
pad16.Profile = sketch16
pad16.setExpression("Length", "Params.pad16_length")
pad16.Reversed = True
body20 = doc.addObject("PartDesign::Body", "Body019")

sketch17 = body20.newObject("Sketcher::SketchObject", "Sketch016")
sketch17.AttachmentSupport = (doc.getObject("XZ_Plane019"), [""])
sketch17.MapMode = "FlatFace"
sketch17.addGeometry([
    Part.LineSegment(App.Vector(218, 77, 0), App.Vector(8, 77, 0)),
    Part.LineSegment(App.Vector(8, 77, 0), App.Vector(8, 61.5, 0)),
    Part.LineSegment(App.Vector(8, 61.5, 0), App.Vector(56.227813, 61.5, 0)),
    Part.ArcOfCircle(Part.Circle(App.Vector(56.227813, 51.5, 0), App.Vector(0, 0, 1), 10), math.radians(7.44819), math.radians(89.999999)),
    Part.ArcOfCircle(Part.Circle(App.Vector(83, 55, 0), App.Vector(0, 0, 1), 17), math.radians(-172.551809), math.radians(-7.448191)),
    Part.ArcOfCircle(Part.Circle(App.Vector(109.772187, 51.5, 0), App.Vector(0, 0, 1), 10), math.radians(90.000001), math.radians(172.55181)),
    Part.LineSegment(App.Vector(109.772187, 61.5, 0), App.Vector(153, 61.5, 0)),
    Part.LineSegment(App.Vector(153, 61.5, 0), App.Vector(153, 56.5, 0)),
    Part.LineSegment(App.Vector(153, 56.5, 0), App.Vector(165, 56.5, 0)),
    Part.LineSegment(App.Vector(165, 56.5, 0), App.Vector(165, 61.5, 0)),
    Part.LineSegment(App.Vector(165, 61.5, 0), App.Vector(218, 61.5, 0)),
    Part.LineSegment(App.Vector(218, 61.5, 0), App.Vector(218, 77, 0)),
], False)
sketch17.addConstraint([
    Sketcher.Constraint("Coincident", 0, 2, 1, 1),
    Sketcher.Constraint("Coincident", 1, 2, 2, 1),
    Sketcher.Constraint("Tangent", 2, 2, 3, 2),
    Sketcher.Constraint("Tangent", 3, 1, 4, 1),
    Sketcher.Constraint("Tangent", 4, 2, 5, 2),
    Sketcher.Constraint("Tangent", 5, 1, 6, 1),
    Sketcher.Constraint("Coincident", 6, 2, 7, 1),
    Sketcher.Constraint("Coincident", 7, 2, 8, 1),
    Sketcher.Constraint("Coincident", 8, 2, 9, 1),
    Sketcher.Constraint("Coincident", 9, 2, 10, 1),
    Sketcher.Constraint("Coincident", 10, 2, 11, 1),
    Sketcher.Constraint("Coincident", 11, 2, 0, 1),
    Sketcher.Constraint("Horizontal", 0),
    Sketcher.Constraint("Vertical", 1),
    Sketcher.Constraint("Horizontal", 2),
    Sketcher.Constraint("Horizontal", 6),
    Sketcher.Constraint("Vertical", 7),
    Sketcher.Constraint("Horizontal", 8),
    Sketcher.Constraint("Vertical", 9),
    Sketcher.Constraint("Horizontal", 10),
    Sketcher.Constraint("Vertical", 11),
    Sketcher.Constraint("Equal", 3, 5),
    Sketcher.Constraint("Horizontal", 3, 3, 5, 3),
    Sketcher.Constraint("Horizontal", 6, 2, 9, 2),
    Sketcher.Constraint("Radius", 3, Q("10 mm")),
    Sketcher.Constraint("Radius", 4, Q("17 mm")),
    Sketcher.Constraint("DistanceX", 0, 2, 0, 1, Q("210 mm")),
    Sketcher.Constraint("DistanceX", 8, 1, 8, 2, Q("12 mm")),
    Sketcher.Constraint("DistanceX", 10, 1, 10, 2, Q("53 mm")),
    Sketcher.Constraint("DistanceY", 7, 2, 7, 1, Q("5 mm")),
    Sketcher.Constraint("DistanceY", 1, 2, 1, 1, Q("15.5 mm")),
    Sketcher.Constraint("DistanceX", -1, 1, 4, 3, Q("83 mm")),
    Sketcher.Constraint("DistanceY", -1, 1, 4, 3, Q("55 mm")),
    Sketcher.Constraint("DistanceX", -1, 1, 0, 2, Q("8 mm")),
    Sketcher.Constraint("DistanceY", -1, 1, 0, 2, Q("77 mm")),
])
sketch17.setExpression("Constraints[24]", "Params.sketch17_radius")
sketch17.setExpression("Constraints[25]", "Params.sketch17_radius2")
sketch17.setExpression("Constraints[26]", "Params.sketch17_width")
sketch17.setExpression("Constraints[27]", "Params.sketch17_width2")
sketch17.setExpression("Constraints[28]", "Params.sketch17_width3")
pad17 = body20.newObject("PartDesign::Pad", "Pad016")
pad17.Profile = sketch17
pad17.setExpression("Length", "Params.pad17_length")
pad17.Midplane = True
doc.recompute()

boolean15 = body20.newObject("PartDesign::Boolean", "Boolean014")
boolean15.Type = "Fuse"
boolean15.addObjects([body16])
doc.recompute()

boolean16 = body20.newObject("PartDesign::Boolean", "Boolean015")
boolean16.Type = "Fuse"
boolean16.addObjects([body17])
doc.recompute()

boolean17 = body20.newObject("PartDesign::Boolean", "Boolean016")
boolean17.Type = "Fuse"
boolean17.addObjects([body18])
doc.recompute()

boolean18 = body20.newObject("PartDesign::Boolean", "Boolean017")
boolean18.Type = "Fuse"
boolean18.addObjects([body19])
doc.recompute()

boolean19 = body20.newObject("PartDesign::Boolean", "Boolean018")
boolean19.Type = "Cut"
boolean19.addObjects([body15])
doc.recompute()

fillet = body20.newObject("PartDesign::Fillet", "Fillet")
fillet.Base = (boolean19, edges_at(boolean19, [
    (177.557, -6, 61.5),
    (49.114, -6, 61.5),
    (62.825, -6, 59.015),
    (159, -6, 56.5),
    (83, -6, 38),
    (153, -6, 59),
    (103.175, -6, 59.015),
    (131.386, -6, 61.5),
    (8, 12, 64),
    (8, -12, 64),
    (188.91, 8, 64.123),
    (188.91, -8, 64.123),
    (42, 12, 64),
    (42, -12, 64),
    (177.557, 6, 61.5),
    (49.114, 6, 61.5),
    (165, 0, 56.5),
    (165, 6, 59),
    (62.825, 6, 59.015),
    (153, 0, 56.5),
    (159, 6, 56.5),
    (83, 6, 38),
    (153, 6, 59),
    (103.175, 6, 59.015),
    (131.386, 6, 61.5),
    (202.332, -8, 46.025),
    (218, -8, 69.25),
    (214.267, -8, 55.788),
    (218, 8, 69.25),
    (218, 0, 61.5),
    (202.332, 8, 46.025),
    (214.267, 8, 55.788),
]))
fillet.setExpression("Radius", "Params.fillet_radius")

doc.recompute()
